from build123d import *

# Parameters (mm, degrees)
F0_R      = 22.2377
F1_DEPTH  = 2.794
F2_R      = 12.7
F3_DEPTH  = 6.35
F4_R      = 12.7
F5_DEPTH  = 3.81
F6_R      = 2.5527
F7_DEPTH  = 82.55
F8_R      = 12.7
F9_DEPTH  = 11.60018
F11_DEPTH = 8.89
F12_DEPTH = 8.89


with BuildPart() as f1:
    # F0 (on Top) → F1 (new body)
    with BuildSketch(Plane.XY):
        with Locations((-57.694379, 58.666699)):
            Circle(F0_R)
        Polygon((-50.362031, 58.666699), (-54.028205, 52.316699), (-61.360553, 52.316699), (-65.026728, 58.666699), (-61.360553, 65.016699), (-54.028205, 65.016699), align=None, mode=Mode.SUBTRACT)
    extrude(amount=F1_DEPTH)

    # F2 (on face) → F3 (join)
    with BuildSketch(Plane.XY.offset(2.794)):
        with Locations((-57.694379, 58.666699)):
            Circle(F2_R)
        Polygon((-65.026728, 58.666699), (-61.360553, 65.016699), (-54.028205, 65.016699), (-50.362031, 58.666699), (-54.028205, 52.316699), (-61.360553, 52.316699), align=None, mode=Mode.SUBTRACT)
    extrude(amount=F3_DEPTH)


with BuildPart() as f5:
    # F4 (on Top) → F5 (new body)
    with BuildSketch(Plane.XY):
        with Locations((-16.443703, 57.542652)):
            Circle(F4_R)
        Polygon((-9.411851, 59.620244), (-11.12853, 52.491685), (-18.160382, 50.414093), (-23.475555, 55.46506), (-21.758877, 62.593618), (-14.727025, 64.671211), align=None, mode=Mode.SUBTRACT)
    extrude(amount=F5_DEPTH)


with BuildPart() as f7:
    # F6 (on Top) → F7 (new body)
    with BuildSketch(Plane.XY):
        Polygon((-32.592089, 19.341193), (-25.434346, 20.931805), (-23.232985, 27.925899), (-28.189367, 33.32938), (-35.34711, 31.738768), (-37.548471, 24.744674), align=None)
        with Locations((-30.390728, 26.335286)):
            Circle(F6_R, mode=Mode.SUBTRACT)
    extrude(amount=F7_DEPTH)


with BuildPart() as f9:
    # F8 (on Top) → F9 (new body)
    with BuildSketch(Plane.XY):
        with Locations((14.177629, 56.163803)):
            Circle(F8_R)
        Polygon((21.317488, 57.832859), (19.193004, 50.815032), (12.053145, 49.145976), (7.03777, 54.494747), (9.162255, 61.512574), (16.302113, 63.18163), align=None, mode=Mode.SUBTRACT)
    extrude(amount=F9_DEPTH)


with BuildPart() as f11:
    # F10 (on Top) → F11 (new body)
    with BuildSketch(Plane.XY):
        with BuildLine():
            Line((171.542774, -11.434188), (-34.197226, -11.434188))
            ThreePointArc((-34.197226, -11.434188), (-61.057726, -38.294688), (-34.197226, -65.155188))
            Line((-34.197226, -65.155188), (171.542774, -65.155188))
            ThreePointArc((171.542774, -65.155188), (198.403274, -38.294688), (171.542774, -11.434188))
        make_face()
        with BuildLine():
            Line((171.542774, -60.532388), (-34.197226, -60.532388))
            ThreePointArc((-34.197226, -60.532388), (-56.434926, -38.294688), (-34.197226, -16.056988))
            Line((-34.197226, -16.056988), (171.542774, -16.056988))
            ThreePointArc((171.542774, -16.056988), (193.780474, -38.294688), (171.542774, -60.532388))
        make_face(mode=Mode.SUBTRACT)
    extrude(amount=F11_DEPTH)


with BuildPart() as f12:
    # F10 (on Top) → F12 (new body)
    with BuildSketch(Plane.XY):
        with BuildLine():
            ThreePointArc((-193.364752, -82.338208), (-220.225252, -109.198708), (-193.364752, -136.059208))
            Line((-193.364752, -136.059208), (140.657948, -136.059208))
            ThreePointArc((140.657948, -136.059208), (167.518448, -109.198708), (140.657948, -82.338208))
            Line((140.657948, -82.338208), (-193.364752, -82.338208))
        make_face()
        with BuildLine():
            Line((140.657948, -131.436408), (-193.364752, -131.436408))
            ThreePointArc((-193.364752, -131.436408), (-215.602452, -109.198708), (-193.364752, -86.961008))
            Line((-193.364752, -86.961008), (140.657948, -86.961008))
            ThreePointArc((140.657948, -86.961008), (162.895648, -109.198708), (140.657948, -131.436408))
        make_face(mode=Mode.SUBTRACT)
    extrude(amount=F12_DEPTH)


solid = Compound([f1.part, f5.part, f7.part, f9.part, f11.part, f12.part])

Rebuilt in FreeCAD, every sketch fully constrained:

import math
import FreeCAD as App
import Part
import Sketcher
from FreeCAD import Vector
Q = App.Units.Quantity

doc = App.newDocument("Part")
body = doc.addObject("PartDesign::Body", "Body")

# Sketch on XY plane
sketch1 = body.newObject("Sketcher::SketchObject", "Sketch")
sketch1.AttachmentSupport = (doc.getObject("XY_Plane"), [""])
sketch1.MapMode = "FlatFace"
sketch1.addGeometry([
    Part.Circle(Vector(-58, 59, 0), Vector(0, 0, 1), 22),  # 0
    Part.LineSegment(Vector(-54, 65, 0), Vector(-50, 59, 0)),  # 1
    Part.LineSegment(Vector(-50, 59, 0), Vector(-54, 52, 0)),  # 2
    Part.LineSegment(Vector(-54, 52, 0), Vector(-61, 52, 0)),  # 3
    Part.LineSegment(Vector(-61, 52, 0), Vector(-65, 59, 0)),  # 4
    Part.LineSegment(Vector(-65, 59, 0), Vector(-61, 65, 0)),  # 5
    Part.LineSegment(Vector(-61, 65, 0), Vector(-54, 65, 0)),  # 6
], False)
sketch1.addConstraint([
    Sketcher.Constraint("Coincident", 1, 2, 2, 1),
    Sketcher.Constraint("Coincident", 2, 2, 3, 1),
    Sketcher.Constraint("Coincident", 3, 2, 4, 1),
    Sketcher.Constraint("Coincident", 4, 2, 5, 1),
    Sketcher.Constraint("Coincident", 5, 2, 6, 1),
    Sketcher.Constraint("Coincident", 6, 2, 1, 1),
    Sketcher.Constraint("Horizontal", 3),
    Sketcher.Constraint("Horizontal", 6),
    Sketcher.Constraint("Parallel", 1, 4),
    Sketcher.Constraint("Parallel", 2, 5),
    Sketcher.Constraint("Horizontal", 0, 3, 1, 2),
    Sketcher.Constraint("Horizontal", 1, 2, 4, 2),
    Sketcher.Constraint("Vertical", 3, 2, 5, 2),
    Sketcher.Constraint("Vertical", 2, 2, 6, 2),
    Sketcher.Constraint("Diameter", 0, Q("1.751 in")),
    Sketcher.Constraint("Angle", 1, Q("-60.000001 deg")),
    Sketcher.Constraint("DistanceY", 3, 2, 5, 2, Q("0.5 in")),
    Sketcher.Constraint("DistanceX", 3, 2, 3, 1, Q("7.332348 mm")),
    Sketcher.Constraint("DistanceY", -1, 1, 0, 3, Q("58.666699 mm")),
    Sketcher.Constraint("DistanceX", 0, 3, -1, 1, Q("57.694379 mm")),
    Sketcher.Constraint("DistanceX", 1, 2, -1, 1, Q("50.362031 mm")),
])
pad1 = body.newObject("PartDesign::Pad", "Pad")
pad1.Profile = sketch1
pad1.Length = Q("0.11 in")

# Sketch on XY plane
sketch2 = body.newObject("Sketcher::SketchObject", "Sketch001")
sketch2.AttachmentSupport = (doc.getObject("XY_Plane"), [""])
sketch2.MapMode = "FlatFace"
sketch2.AttachmentOffset = App.Placement(Vector(0, 0, 0.11 * 25.4), App.Rotation())
sketch2.addGeometry([
    Part.Circle(Vector(-58, 59, 0), Vector(0, 0, 1), 13),  # 0
    Part.LineSegment(Vector(-61, 52, 0), Vector(-65, 59, 0)),  # 1
    Part.LineSegment(Vector(-65, 59, 0), Vector(-61, 65, 0)),  # 2
    Part.LineSegment(Vector(-61, 65, 0), Vector(-54, 65, 0)),  # 3
    Part.LineSegment(Vector(-54, 65, 0), Vector(-50, 59, 0)),  # 4
    Part.LineSegment(Vector(-50, 59, 0), Vector(-54, 52, 0)),  # 5
    Part.LineSegment(Vector(-54, 52, 0), Vector(-61, 52, 0)),  # 6
], False)
sketch2.addConstraint([
    Sketcher.Constraint("Coincident", 1, 2, 2, 1),
    Sketcher.Constraint("Coincident", 2, 2, 3, 1),
    Sketcher.Constraint("Coincident", 3, 2, 4, 1),
    Sketcher.Constraint("Coincident", 4, 2, 5, 1),
    Sketcher.Constraint("Coincident", 5, 2, 6, 1),
    Sketcher.Constraint("Coincident", 6, 2, 1, 1),
    Sketcher.Constraint("Horizontal", 3),
    Sketcher.Constraint("Horizontal", 6),
    Sketcher.Constraint("Parallel", 1, 4),
    Sketcher.Constraint("Parallel", 2, 5),
    Sketcher.Constraint("Horizontal", 0, 3, 1, 2),
    Sketcher.Constraint("Horizontal", 1, 2, 4, 2),
    Sketcher.Constraint("Vertical", 3, 2, 5, 2),
    Sketcher.Constraint("Vertical", 2, 2, 6, 2),
    Sketcher.Constraint("Diameter", 0, Q("1 in")),
    Sketcher.Constraint("Angle", 1, Q("120.000005 deg")),
    Sketcher.Constraint("DistanceY", 5, 2, 3, 2, Q("0.5 in")),
    Sketcher.Constraint("DistanceX", 3, 1, 3, 2, Q("7.332348 mm")),
    Sketcher.Constraint("DistanceY", -1, 1, 0, 3, Q("58.666699 mm")),
    Sketcher.Constraint("DistanceX", 0, 3, -1, 1, Q("57.694379 mm")),
    Sketcher.Constraint("DistanceX", 1, 2, -1, 1, Q("65.026728 mm")),
])
pad2 = body.newObject("PartDesign::Pad", "Pad001")
pad2.Profile = sketch2
pad2.Length = Q("0.25 in")
body2 = doc.addObject("PartDesign::Body", "Body001")

# Sketch on XY plane
sketch3 = body2.newObject("Sketcher::SketchObject", "Sketch002")
sketch3.AttachmentSupport = (doc.getObject("XY_Plane001"), [""])
sketch3.MapMode = "FlatFace"
sketch3.addGeometry([
    Part.Circle(Vector(-16, 58, 0), Vector(0, 0, 1), 13),  # 0
    Part.LineSegment(Vector(-15, 65, 0), Vector(-9, 60, 0)),  # 1
    Part.LineSegment(Vector(-9, 60, 0), Vector(-11, 52, 0)),  # 2
    Part.LineSegment(Vector(-11, 52, 0), Vector(-18, 50, 0)),  # 3
    Part.LineSegment(Vector(-18, 50, 0), Vector(-23, 55, 0)),  # 4
    Part.LineSegment(Vector(-23, 55, 0), Vector(-22, 63, 0)),  # 5
    Part.LineSegment(Vector(-22, 63, 0), Vector(-15, 65, 0)),  # 6
], False)
sketch3.addConstraint([
    Sketcher.Constraint("Coincident", 1, 2, 2, 1),
    Sketcher.Constraint("Coincident", 2, 2, 3, 1),
    Sketcher.Constraint("Coincident", 3, 2, 4, 1),
    Sketcher.Constraint("Coincident", 4, 2, 5, 1),
    Sketcher.Constraint("Coincident", 5, 2, 6, 1),
    Sketcher.Constraint("Coincident", 6, 2, 1, 1),
    Sketcher.Constraint("Parallel", 1, 4),
    Sketcher.Constraint("Parallel", 2, 5),
    Sketcher.Constraint("Parallel", 3, 6),
    Sketcher.Constraint("Equal", 1, 2),
    Sketcher.Constraint("Equal", 2, 3),
    Sketcher.Constraint("Equal", 3, 4),
    Sketcher.Constraint("Diameter", 0, Q("1 in")),
    Sketcher.Constraint("Angle", 1, Q("-43.53999 deg")),
    Sketcher.Constraint("Angle", 2, Q("-103.539992 deg")),
    Sketcher.Constraint("Angle", 3, Q("-163.53999 deg")),
    Sketcher.Constraint("Distance", 1, Q("7.332349 mm")),
    Sketcher.Constraint("DistanceY", -1, 1, 0, 3, Q("57.542652 mm")),
    Sketcher.Constraint("DistanceX", 1, 2, -1, 1, Q("9.411851 mm")),
    Sketcher.Constraint("DistanceY", -1, 1, 4, 2, Q("55.46506 mm")),
    Sketcher.Constraint("DistanceX", 0, 3, 1, 2, Q("7.031852 mm")),
])
pad3 = body2.newObject("PartDesign::Pad", "Pad002")
pad3.Profile = sketch3
pad3.Length = Q("0.15 in")
body3 = doc.addObject("PartDesign::Body", "Body002")

# Sketch on XY plane
sketch4 = body3.newObject("Sketcher::SketchObject", "Sketch003")
sketch4.AttachmentSupport = (doc.getObject("XY_Plane002"), [""])
sketch4.MapMode = "FlatFace"
sketch4.addGeometry([
    Part.LineSegment(Vector(-32.6, 19.3, 0), Vector(-25.4, 20.9, 0)),  # 0
    Part.LineSegment(Vector(-25.4, 20.9, 0), Vector(-23.2, 27.9, 0)),  # 1
    Part.LineSegment(Vector(-23.2, 27.9, 0), Vector(-28.2, 33.3, 0)),  # 2
    Part.LineSegment(Vector(-28.2, 33.3, 0), Vector(-35.3, 31.7, 0)),  # 3
    Part.LineSegment(Vector(-35.3, 31.7, 0), Vector(-37.5, 24.7, 0)),  # 4
    Part.LineSegment(Vector(-37.5, 24.7, 0), Vector(-32.6, 19.3, 0)),  # 5
    Part.Circle(Vector(-30.4, 26.3, 0), Vector(0, 0, 1), 2.6),  # 6
], False)
sketch4.addConstraint([
    Sketcher.Constraint("Coincident", 0, 2, 1, 1),
    Sketcher.Constraint("Coincident", 1, 2, 2, 1),
    Sketcher.Constraint("Coincident", 2, 2, 3, 1),
    Sketcher.Constraint("Coincident", 3, 2, 4, 1),
    Sketcher.Constraint("Coincident", 4, 2, 5, 1),
    Sketcher.Constraint("Coincident", 5, 2, 0, 1),
    Sketcher.Constraint("Parallel", 0, 3),
    Sketcher.Constraint("Parallel", 1, 4),
    Sketcher.Constraint("Parallel", 2, 5),
    Sketcher.Constraint("Equal", 0, 1),
    Sketcher.Constraint("Equal", 1, 2),
    Sketcher.Constraint("Equal", 2, 3),
    Sketcher.Constraint("Diameter", 6, Q("0.201 in")),
    Sketcher.Constraint("DistanceY", -1, 1, 1, 2, Q("27.925899 mm")),
    Sketcher.Constraint("Distance", 0, Q("7.332348 mm")),
    Sketcher.Constraint("DistanceY", -1, 1, 2, 2, Q("33.32938 mm")),
    Sketcher.Constraint("DistanceX", 3, 2, -1, 1, Q("35.34711 mm")),
    Sketcher.Constraint("DistanceY", -1, 1, 3, 2, Q("31.738768 mm")),
    Sketcher.Constraint("DistanceX", 4, 2, -1, 1, Q("37.548471 mm")),
    Sketcher.Constraint("DistanceX", 6, 3, 0, 2, Q("4.956382 mm")),
    Sketcher.Constraint("DistanceY", 0, 2, 6, 3, Q("5.403481 mm")),
])
pad4 = body3.newObject("PartDesign::Pad", "Pad003")
pad4.Profile = sketch4
pad4.Length = Q("3.25 in")
body4 = doc.addObject("PartDesign::Body", "Body003")

# Sketch on XY plane
sketch5 = body4.newObject("Sketcher::SketchObject", "Sketch004")
sketch5.AttachmentSupport = (doc.getObject("XY_Plane003"), [""])
sketch5.MapMode = "FlatFace"
sketch5.addGeometry([
    Part.Circle(Vector(14, 56, 0), Vector(0, 0, 1), 13),  # 0
    Part.LineSegment(Vector(16, 63, 0), Vector(21, 58, 0)),  # 1
    Part.LineSegment(Vector(21, 58, 0), Vector(19, 51, 0)),  # 2
    Part.LineSegment(Vector(19, 51, 0), Vector(12, 49, 0)),  # 3
    Part.LineSegment(Vector(12, 49, 0), Vector(7, 54, 0)),  # 4
    Part.LineSegment(Vector(7, 54, 0), Vector(9, 62, 0)),  # 5
    Part.LineSegment(Vector(9, 62, 0), Vector(16, 63, 0)),  # 6
], False)
sketch5.addConstraint([
    Sketcher.Constraint("Coincident", 1, 2, 2, 1),
    Sketcher.Constraint("Coincident", 2, 2, 3, 1),
    Sketcher.Constraint("Coincident", 3, 2, 4, 1),
    Sketcher.Constraint("Coincident", 4, 2, 5, 1),
    Sketcher.Constraint("Coincident", 5, 2, 6, 1),
    Sketcher.Constraint("Coincident", 6, 2, 1, 1),
    Sketcher.Constraint("Parallel", 1, 4),
    Sketcher.Constraint("Parallel", 2, 5),
    Sketcher.Constraint("Parallel", 3, 6),
    Sketcher.Constraint("Equal", 1, 2),
    Sketcher.Constraint("Equal", 2, 3),
    Sketcher.Constraint("Equal", 3, 4),
    Sketcher.Constraint("Diameter", 0, Q("1 in")),
    Sketcher.Constraint("DistanceY", 3, 2, 5, 2, Q("12.366598 mm")),
    Sketcher.Constraint("Distance", 1, Q("7.332349 mm")),
    Sketcher.Constraint("DistanceX", -1, 1, 0, 3, Q("14.177629 mm")),
    Sketcher.Constraint("DistanceX", -1, 1, 1, 2, Q("21.317488 mm")),
    Sketcher.Constraint("DistanceY", -1, 1, 1, 2, Q("57.832859 mm")),
    Sketcher.Constraint("DistanceX", -1, 1, 4, 2, Q("7.03777 mm")),
    Sketcher.Constraint("DistanceY", -1, 1, 6, 2, Q("63.18163 mm")),
    Sketcher.Constraint("DistanceY", 2, 2, 0, 3, Q("5.348771 mm")),
])
pad5 = body4.newObject("PartDesign::Pad", "Pad004")
pad5.Profile = sketch5
pad5.Length = Q("0.4567 in")
body5 = doc.addObject("PartDesign::Body", "Body004")

# Sketch on XY plane
sketch6 = body5.newObject("Sketcher::SketchObject", "Sketch005")
sketch6.AttachmentSupport = (doc.getObject("XY_Plane004"), [""])
sketch6.MapMode = "FlatFace"
sketch6.addGeometry([
    Part.LineSegment(Vector(172, -11, 0), Vector(-34, -11, 0)),  # 0
    Part.ArcOfCircle(Part.Circle(Vector(-34, -38, 0), Vector(0, 0, 1), 27), math.radians(90), math.radians(270)),  # 1
    Part.LineSegment(Vector(-34, -65, 0), Vector(172, -65, 0)),  # 2
    Part.ArcOfCircle(Part.Circle(Vector(172, -38, 0), Vector(0, 0, 1), 27), math.radians(-90), math.radians(90)),  # 3
    Part.ArcOfCircle(Part.Circle(Vector(172, -38, 0), Vector(0, 0, 1), 22), math.radians(-90), math.radians(90)),  # 4
    Part.LineSegment(Vector(172, -61, 0), Vector(-34, -61, 0)),  # 5
    Part.ArcOfCircle(Part.Circle(Vector(-34, -38, 0), Vector(0, 0, 1), 22), math.radians(90), math.radians(270)),  # 6
    Part.LineSegment(Vector(-34, -16, 0), Vector(172, -16, 0)),  # 7
], False)
sketch6.addConstraint([
    Sketcher.Constraint("Tangent", 0, 2, 1, 1),
    Sketcher.Constraint("Tangent", 1, 2, 2, 1),
    Sketcher.Constraint("Tangent", 2, 2, 3, 1),
    Sketcher.Constraint("Tangent", 3, 2, 0, 1),
    Sketcher.Constraint("Tangent", 4, 1, 5, 1),
    Sketcher.Constraint("Tangent", 5, 2, 6, 2),
    Sketcher.Constraint("Tangent", 6, 1, 7, 1),
    Sketcher.Constraint("Tangent", 7, 2, 4, 2),
    Sketcher.Constraint("Horizontal", 0),
    Sketcher.Constraint("Horizontal", 2),
    Sketcher.Constraint("Horizontal", 5),
    Sketcher.Constraint("Horizontal", 7),
    Sketcher.Constraint("Coincident", 4, 3, 3, 3),
    Sketcher.Constraint("Vertical", 6, 3, 0, 2),
    Sketcher.Constraint("DistanceX", 0, 2, 0, 1, Q("8.1 in")),
    Sketcher.Constraint("Radius", 1, Q("1.0575 in")),
    Sketcher.Constraint("Radius", 4, Q("0.8755 in")),
    Sketcher.Constraint("DistanceY", 0, 2, -1, 1, Q("11.434188 mm")),
    Sketcher.Constraint("DistanceX", 1, 3, -1, 1, Q("34.197226 mm")),
])
pad6 = body5.newObject("PartDesign::Pad", "Pad005")
pad6.Profile = sketch6
pad6.Length = Q("0.35 in")
body6 = doc.addObject("PartDesign::Body", "Body005")

# Sketch on XY plane
sketch7 = body6.newObject("Sketcher::SketchObject", "Sketch006")
sketch7.AttachmentSupport = (doc.getObject("XY_Plane005"), [""])
sketch7.MapMode = "FlatFace"
sketch7.addGeometry([
    Part.ArcOfCircle(Part.Circle(Vector(-193, -109, 0), Vector(0, 0, 1), 27), math.radians(90), math.radians(270)),  # 0
    Part.LineSegment(Vector(-193, -136, 0), Vector(141, -136, 0)),  # 1
    Part.ArcOfCircle(Part.Circle(Vector(141, -109, 0), Vector(0, 0, 1), 27), math.radians(-90), math.radians(90)),  # 2
    Part.LineSegment(Vector(141, -82, 0), Vector(-193, -82, 0)),  # 3
    Part.ArcOfCircle(Part.Circle(Vector(141, -109, 0), Vector(0, 0, 1), 22), math.radians(-90), math.radians(90)),  # 4
    Part.LineSegment(Vector(141, -131, 0), Vector(-193, -131, 0)),  # 5
    Part.ArcOfCircle(Part.Circle(Vector(-193, -109, 0), Vector(0, 0, 1), 22), math.radians(90), math.radians(270)),  # 6
    Part.LineSegment(Vector(-193, -87, 0), Vector(141, -87, 0)),  # 7
], False)
sketch7.addConstraint([
    Sketcher.Constraint("Tangent", 0, 2, 1, 1),
    Sketcher.Constraint("Tangent", 1, 2, 2, 1),
    Sketcher.Constraint("Tangent", 2, 2, 3, 1),
    Sketcher.Constraint("Tangent", 3, 2, 0, 1),
    Sketcher.Constraint("Tangent", 4, 1, 5, 1),
    Sketcher.Constraint("Tangent", 5, 2, 6, 2),
    Sketcher.Constraint("Tangent", 6, 1, 7, 1),
    Sketcher.Constraint("Tangent", 7, 2, 4, 2),
    Sketcher.Constraint("Horizontal", 1),
    Sketcher.Constraint("Horizontal", 3),
    Sketcher.Constraint("Horizontal", 5),
    Sketcher.Constraint("Horizontal", 7),
    Sketcher.Constraint("Coincident", 4, 3, 2, 3),
    Sketcher.Constraint("Vertical", 6, 3, 0, 2),
    Sketcher.Constraint("Radius", 0, Q("1.0575 in")),
    Sketcher.Constraint("Radius", 4, Q("0.8755 in")),
    Sketcher.Constraint("DistanceX", 1, 1, 1, 2, Q("13.1505 in")),
    Sketcher.Constraint("DistanceX", -1, 1, 2, 3, Q("140.657948 mm")),
    Sketcher.Constraint("DistanceY", 1, 2, -1, 1, Q("136.059208 mm")),
])
pad7 = body6.newObject("PartDesign::Pad", "Pad006")
pad7.Profile = sketch7
pad7.Length = Q("0.35 in")

doc.recompute()
